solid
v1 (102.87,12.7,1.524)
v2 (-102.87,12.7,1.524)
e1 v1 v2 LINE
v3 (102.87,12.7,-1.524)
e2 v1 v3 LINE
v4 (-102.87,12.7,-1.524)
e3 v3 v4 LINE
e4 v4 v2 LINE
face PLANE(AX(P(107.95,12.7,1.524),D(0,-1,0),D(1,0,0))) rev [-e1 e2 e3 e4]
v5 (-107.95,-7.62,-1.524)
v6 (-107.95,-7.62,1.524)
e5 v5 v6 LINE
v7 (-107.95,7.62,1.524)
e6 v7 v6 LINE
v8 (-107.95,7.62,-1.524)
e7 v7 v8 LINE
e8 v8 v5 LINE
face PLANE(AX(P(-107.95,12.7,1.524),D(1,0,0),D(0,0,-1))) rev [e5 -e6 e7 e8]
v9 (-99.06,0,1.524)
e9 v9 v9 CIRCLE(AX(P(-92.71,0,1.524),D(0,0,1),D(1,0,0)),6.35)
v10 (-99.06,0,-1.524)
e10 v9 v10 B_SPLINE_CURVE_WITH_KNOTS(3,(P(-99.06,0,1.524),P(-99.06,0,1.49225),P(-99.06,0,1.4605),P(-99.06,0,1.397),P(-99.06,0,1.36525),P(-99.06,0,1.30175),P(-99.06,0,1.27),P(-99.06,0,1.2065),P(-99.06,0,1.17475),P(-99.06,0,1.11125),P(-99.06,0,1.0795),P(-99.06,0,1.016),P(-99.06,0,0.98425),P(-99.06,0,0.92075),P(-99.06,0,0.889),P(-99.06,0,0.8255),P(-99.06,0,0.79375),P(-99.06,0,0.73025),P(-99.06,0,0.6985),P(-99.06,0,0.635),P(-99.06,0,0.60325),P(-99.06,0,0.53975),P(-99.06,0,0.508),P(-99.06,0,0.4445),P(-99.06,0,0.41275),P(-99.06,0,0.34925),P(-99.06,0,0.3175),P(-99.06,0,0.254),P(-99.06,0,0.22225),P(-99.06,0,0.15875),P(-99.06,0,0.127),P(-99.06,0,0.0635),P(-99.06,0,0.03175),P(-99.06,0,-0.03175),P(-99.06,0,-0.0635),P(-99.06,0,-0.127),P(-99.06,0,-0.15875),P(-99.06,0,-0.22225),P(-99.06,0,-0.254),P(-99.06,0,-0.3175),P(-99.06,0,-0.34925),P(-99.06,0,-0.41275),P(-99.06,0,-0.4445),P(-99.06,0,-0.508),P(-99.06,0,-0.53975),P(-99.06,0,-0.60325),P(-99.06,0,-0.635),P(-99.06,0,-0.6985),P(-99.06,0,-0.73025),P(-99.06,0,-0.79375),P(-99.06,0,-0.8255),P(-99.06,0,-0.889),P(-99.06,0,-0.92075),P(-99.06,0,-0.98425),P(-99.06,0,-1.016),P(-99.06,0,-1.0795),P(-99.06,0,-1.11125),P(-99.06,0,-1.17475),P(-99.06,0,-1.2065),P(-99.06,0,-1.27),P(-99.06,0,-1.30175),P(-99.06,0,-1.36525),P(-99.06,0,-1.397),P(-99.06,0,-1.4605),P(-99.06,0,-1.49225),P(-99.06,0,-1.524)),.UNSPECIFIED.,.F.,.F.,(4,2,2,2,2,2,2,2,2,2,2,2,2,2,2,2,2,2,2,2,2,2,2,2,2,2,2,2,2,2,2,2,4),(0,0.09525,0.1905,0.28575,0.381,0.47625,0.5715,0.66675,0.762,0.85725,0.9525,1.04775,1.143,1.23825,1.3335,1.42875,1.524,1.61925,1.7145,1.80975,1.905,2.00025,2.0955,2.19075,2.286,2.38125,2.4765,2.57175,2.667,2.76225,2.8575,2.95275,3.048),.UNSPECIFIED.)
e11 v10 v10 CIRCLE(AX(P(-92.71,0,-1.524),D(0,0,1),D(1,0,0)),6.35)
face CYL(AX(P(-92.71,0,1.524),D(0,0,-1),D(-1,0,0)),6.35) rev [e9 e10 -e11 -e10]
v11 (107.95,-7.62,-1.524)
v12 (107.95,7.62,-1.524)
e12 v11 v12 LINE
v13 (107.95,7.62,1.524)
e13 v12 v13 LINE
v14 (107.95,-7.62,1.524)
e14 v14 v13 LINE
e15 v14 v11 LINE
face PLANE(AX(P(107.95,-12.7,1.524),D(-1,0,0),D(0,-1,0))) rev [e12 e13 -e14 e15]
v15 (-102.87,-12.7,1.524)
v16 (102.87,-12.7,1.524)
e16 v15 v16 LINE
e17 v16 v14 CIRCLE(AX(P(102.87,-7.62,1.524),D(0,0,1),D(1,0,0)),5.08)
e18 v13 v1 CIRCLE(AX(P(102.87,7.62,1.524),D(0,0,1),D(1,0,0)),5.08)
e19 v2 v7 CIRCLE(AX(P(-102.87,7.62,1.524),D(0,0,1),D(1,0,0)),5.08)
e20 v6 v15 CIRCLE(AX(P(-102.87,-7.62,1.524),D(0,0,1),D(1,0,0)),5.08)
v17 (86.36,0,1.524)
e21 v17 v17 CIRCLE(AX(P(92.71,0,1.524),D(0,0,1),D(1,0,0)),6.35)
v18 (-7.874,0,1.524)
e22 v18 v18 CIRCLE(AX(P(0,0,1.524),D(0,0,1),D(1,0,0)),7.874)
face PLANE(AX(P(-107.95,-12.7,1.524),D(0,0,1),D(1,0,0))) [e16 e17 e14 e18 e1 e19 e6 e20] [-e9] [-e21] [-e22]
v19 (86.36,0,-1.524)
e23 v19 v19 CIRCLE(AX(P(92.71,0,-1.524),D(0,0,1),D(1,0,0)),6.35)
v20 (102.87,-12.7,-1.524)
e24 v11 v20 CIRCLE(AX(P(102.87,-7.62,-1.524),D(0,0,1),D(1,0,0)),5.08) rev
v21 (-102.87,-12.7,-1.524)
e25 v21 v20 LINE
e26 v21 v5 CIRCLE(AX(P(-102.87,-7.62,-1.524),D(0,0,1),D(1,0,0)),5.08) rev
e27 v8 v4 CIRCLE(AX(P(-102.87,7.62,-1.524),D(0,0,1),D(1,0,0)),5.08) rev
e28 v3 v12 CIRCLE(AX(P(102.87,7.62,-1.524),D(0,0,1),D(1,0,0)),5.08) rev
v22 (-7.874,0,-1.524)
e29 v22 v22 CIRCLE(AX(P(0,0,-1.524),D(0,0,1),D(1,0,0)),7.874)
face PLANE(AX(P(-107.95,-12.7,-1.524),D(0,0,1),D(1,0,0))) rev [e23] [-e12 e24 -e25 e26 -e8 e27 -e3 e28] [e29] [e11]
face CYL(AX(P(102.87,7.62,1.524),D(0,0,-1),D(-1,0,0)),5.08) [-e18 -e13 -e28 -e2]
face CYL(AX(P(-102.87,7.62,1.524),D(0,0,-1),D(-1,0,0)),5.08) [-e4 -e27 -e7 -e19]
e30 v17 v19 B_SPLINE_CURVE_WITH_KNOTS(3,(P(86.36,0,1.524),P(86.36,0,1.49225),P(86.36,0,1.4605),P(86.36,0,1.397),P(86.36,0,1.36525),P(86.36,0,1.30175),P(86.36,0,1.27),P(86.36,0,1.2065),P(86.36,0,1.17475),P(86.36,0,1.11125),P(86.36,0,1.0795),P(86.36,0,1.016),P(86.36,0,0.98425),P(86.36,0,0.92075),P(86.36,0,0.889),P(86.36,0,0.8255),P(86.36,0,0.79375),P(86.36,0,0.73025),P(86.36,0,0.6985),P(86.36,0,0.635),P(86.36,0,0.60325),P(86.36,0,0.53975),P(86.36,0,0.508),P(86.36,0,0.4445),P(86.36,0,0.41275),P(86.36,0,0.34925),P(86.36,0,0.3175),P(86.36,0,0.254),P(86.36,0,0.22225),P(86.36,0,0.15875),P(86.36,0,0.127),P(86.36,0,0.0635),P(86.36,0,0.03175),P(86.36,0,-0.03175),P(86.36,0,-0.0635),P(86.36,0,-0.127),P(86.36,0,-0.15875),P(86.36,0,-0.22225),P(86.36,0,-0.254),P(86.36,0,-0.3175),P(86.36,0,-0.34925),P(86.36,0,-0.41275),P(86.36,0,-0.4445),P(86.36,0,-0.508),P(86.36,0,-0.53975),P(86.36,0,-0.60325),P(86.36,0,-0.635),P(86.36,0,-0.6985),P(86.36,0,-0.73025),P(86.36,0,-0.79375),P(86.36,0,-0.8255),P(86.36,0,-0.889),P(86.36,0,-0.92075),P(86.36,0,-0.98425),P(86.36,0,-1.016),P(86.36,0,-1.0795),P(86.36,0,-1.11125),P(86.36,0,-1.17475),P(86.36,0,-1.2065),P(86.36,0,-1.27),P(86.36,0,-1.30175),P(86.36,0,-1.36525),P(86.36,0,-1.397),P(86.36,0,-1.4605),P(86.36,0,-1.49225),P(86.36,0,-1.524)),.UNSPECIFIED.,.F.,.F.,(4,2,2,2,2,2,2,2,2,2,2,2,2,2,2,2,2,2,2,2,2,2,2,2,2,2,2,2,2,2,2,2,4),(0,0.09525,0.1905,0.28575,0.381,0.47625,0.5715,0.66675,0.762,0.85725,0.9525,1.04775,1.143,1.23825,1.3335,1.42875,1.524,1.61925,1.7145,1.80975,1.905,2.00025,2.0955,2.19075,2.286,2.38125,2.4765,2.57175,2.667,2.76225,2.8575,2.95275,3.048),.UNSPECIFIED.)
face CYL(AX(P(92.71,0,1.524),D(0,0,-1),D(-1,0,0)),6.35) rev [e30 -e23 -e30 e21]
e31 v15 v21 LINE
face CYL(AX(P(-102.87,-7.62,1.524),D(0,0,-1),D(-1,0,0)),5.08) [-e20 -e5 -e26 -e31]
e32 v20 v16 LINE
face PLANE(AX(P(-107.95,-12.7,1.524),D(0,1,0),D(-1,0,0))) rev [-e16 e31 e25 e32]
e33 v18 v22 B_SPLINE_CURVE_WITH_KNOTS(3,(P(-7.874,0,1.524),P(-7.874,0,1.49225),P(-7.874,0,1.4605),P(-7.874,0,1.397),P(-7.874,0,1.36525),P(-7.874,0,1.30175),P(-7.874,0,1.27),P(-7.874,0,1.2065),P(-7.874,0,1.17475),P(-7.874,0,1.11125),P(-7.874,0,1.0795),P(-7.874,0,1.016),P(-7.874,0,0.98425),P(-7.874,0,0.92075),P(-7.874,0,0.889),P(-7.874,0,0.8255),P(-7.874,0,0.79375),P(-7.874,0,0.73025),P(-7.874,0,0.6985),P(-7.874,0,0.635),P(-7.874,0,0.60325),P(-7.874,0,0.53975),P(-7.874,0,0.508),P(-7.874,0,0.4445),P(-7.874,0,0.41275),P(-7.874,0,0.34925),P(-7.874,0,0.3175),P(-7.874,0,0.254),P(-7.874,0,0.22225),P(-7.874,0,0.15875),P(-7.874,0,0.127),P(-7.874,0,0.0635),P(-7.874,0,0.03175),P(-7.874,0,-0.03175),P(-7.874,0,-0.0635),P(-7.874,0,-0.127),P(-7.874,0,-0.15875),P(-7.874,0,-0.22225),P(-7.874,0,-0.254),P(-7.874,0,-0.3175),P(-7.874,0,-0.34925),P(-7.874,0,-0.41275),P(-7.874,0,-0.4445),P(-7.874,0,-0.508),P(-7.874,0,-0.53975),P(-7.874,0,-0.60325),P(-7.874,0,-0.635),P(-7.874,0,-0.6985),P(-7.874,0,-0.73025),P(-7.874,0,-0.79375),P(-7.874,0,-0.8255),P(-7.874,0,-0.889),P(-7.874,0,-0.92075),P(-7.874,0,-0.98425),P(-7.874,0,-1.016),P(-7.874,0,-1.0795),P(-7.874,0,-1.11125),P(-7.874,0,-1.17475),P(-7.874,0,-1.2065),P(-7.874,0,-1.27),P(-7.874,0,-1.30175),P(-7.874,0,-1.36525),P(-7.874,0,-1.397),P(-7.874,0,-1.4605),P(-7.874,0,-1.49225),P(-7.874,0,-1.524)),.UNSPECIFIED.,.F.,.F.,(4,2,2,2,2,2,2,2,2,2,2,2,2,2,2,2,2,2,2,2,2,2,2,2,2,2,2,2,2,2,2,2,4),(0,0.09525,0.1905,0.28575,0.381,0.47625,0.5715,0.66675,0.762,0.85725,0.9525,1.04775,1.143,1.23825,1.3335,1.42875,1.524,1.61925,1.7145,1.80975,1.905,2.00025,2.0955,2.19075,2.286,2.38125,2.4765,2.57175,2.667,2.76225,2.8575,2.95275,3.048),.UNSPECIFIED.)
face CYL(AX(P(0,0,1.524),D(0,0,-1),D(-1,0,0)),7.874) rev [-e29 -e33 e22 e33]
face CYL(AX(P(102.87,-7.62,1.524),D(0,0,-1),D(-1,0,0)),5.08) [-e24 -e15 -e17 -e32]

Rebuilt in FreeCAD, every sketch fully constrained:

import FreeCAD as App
import Part
import Sketcher
from FreeCAD import Vector
Q = App.Units.Quantity


def edges_at(feature, points):
    """Names of the edges that pass closest to the given points."""
    edges = feature.Shape.Edges
    near = lambda p: min(range(len(edges)), key=lambda i: edges[i].distToShape(Part.Vertex(*p))[0])
    return sorted({f"Edge{near(p) + 1}" for p in points})

doc = App.newDocument("Part")
body = doc.addObject("PartDesign::Body", "Body")

sketch1 = body.newObject("Sketcher::SketchObject", "Sketch")
sketch1.AttachmentSupport = (doc.getObject("XY_Plane"), [""])
sketch1.MapMode = "FlatFace"
sketch1.addGeometry(Part.LineSegment(Vector(-108, 13, 0), Vector(-108, -13, 0)), False)
sketch1.addGeometry(Part.LineSegment(Vector(-108, -13, 0), Vector(108, -13, 0)), False)
sketch1.addGeometry(Part.LineSegment(Vector(108, -13, 0), Vector(108, 13, 0)), False)
sketch1.addGeometry(Part.LineSegment(Vector(108, 13, 0), Vector(-108, 13, 0)), False)
sketch1.addGeometry(Part.Circle(Vector(-93, 0, 0), Vector(0, 0, 1), 6), False)
sketch1.addGeometry(Part.Circle(Vector(0, 0, 0), Vector(0, 0, 1), 8), False)
sketch1.addGeometry(Part.Circle(Vector(93, 0, 0), Vector(0, 0, 1), 6), False)
sketch1.addConstraint(Sketcher.Constraint("Coincident", 0, 2, 1, 1))
sketch1.addConstraint(Sketcher.Constraint("Coincident", 1, 2, 2, 1))
sketch1.addConstraint(Sketcher.Constraint("Coincident", 2, 2, 3, 1))
sketch1.addConstraint(Sketcher.Constraint("Coincident", 3, 2, 0, 1))
sketch1.addConstraint(Sketcher.Constraint("Vertical", 0))
sketch1.addConstraint(Sketcher.Constraint("Horizontal", 1))
sketch1.addConstraint(Sketcher.Constraint("Vertical", 2))
sketch1.addConstraint(Sketcher.Constraint("Horizontal", 3))
sketch1.addConstraint(Sketcher.Constraint("Coincident", 5, 3, -1, 1))
sketch1.addConstraint(Sketcher.Constraint("Equal", 4, 6))
sketch1.addConstraint(Sketcher.Constraint("Symmetric", 4, 3, 6, 3, -1, 1))
sketch1.addConstraint(Sketcher.Constraint("Symmetric", 0, 2, 2, 2, -1, 1))
sketch1.addConstraint(Sketcher.Constraint("PointOnObject", 4, 3, -1))
sketch1.addConstraint(Sketcher.Constraint("Diameter", 4, Q("0.5 in")))
sketch1.addConstraint(Sketcher.Constraint("Diameter", 5, Q("0.62 in")))
sketch1.addConstraint(Sketcher.Constraint("DistanceY", 0, 2, 0, 1, Q("1 in")))
sketch1.addConstraint(Sketcher.Constraint("DistanceX", 1, 1, 1, 2, Q("8.5 in")))
sketch1.addConstraint(Sketcher.Constraint("DistanceX", 4, 3, 6, 3, Q("7.3 in")))
pad1 = body.newObject("PartDesign::Pad", "Pad")
pad1.Profile = sketch1
pad1.Length = Q("0.12 in")
pad1.Midplane = True
doc.recompute()

fillet = body.newObject("PartDesign::Fillet", "Fillet")
fillet.Base = (pad1, edges_at(pad1, [
    (-107.95, 12.7, 0),
    (107.95, 12.7, 0),
    (107.95, -12.7, 0),
    (-107.95, -12.7, 0),
]))
fillet.Radius = Q("0.2 in")

doc.recompute()
